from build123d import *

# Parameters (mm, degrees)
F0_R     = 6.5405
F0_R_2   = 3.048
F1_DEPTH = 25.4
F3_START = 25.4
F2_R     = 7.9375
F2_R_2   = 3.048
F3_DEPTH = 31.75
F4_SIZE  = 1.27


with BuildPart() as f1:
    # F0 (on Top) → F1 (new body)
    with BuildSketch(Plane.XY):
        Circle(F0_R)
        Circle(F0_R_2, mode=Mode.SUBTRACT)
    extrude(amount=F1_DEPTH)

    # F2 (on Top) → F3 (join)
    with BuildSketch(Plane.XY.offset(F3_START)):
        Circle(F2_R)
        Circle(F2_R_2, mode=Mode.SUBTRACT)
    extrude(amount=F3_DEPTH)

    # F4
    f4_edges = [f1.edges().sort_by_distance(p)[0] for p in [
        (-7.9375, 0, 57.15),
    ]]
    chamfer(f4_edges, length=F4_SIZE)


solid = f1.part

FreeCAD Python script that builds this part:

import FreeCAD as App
import Part
import Sketcher
from FreeCAD import Vector
Q = App.Units.Quantity


def edges_at(feature, points):
    """Names of the edges that pass closest to the given points."""
    edges = feature.Shape.Edges
    near = lambda p: min(range(len(edges)), key=lambda i: edges[i].distToShape(Part.Vertex(*p))[0])
    return sorted({f"Edge{near(p) + 1}" for p in points})

doc = App.newDocument("Part")
params = doc.addObject("Spreadsheet::Sheet", "Params")
for row, (alias, value) in enumerate([
    ("sketch1_diameter", "0.24 in"),
    ("sketch1_diameter2", "0.515 in"),
    ("pad1_length", "1 in"),
    ("sketch2_diameter", "0.24 in"),
    ("sketch2_diameter2", "0.625 in"),
    ("pad2_length", "1.25 in"),
    ("chamfer_size", "0.05 in"),
], start=1):
    params.set(f"A{row}", alias)
    params.set(f"B{row}", "=" + value)
    params.setAlias(f"B{row}", alias)

body = doc.addObject("PartDesign::Body", "Body")

# Sketch on XY plane
sketch1 = doc.addObject("Sketcher::SketchObject", "Sketch")
body.addObject(sketch1)
sketch1.AttachmentSupport = (doc.XY_Plane, [""])
sketch1.MapMode = "FlatFace"
sketch1.addGeometry([
    Part.Circle(Vector(0, 0, 0), Vector(0, 0, 1), 6.5),
    Part.Circle(Vector(0, 0, 0), Vector(0, 0, 1), 3),
], False)
sketch1.addConstraint([
    Sketcher.Constraint("Coincident", 0, 3, -1, 1),
    Sketcher.Constraint("Coincident", 1, 3, -1, 1),
    Sketcher.Constraint("Diameter", 1, Q("0.24 in")),
    Sketcher.Constraint("Diameter", 0, Q("0.515 in")),
])
sketch1.setExpression("Constraints[2]", "Params.sketch1_diameter")
sketch1.setExpression("Constraints[3]", "Params.sketch1_diameter2")
pad1 = doc.addObject("PartDesign::Pad", "Pad")
body.addObject(pad1)
pad1.Profile = sketch1
pad1.setExpression("Length", "Params.pad1_length")

# Sketch on XY plane
sketch2 = doc.addObject("Sketcher::SketchObject", "Sketch001")
body.addObject(sketch2)
sketch2.AttachmentSupport = (doc.XY_Plane, [""])
sketch2.MapMode = "FlatFace"
sketch2.AttachmentOffset = App.Placement(Vector(0, 0, 1 * 25.4), App.Rotation())
sketch2.addGeometry([
    Part.Circle(Vector(0, 0, 0), Vector(0, 0, 1), 7.9),
    Part.Circle(Vector(0, 0, 0), Vector(0, 0, 1), 3),
], False)
sketch2.addConstraint([
    Sketcher.Constraint("Coincident", 0, 3, -1, 1),
    Sketcher.Constraint("Coincident", 1, 3, -1, 1),
    Sketcher.Constraint("Diameter", 1, Q("0.24 in")),
    Sketcher.Constraint("Diameter", 0, Q("0.625 in")),
])
sketch2.setExpression("Constraints[2]", "Params.sketch2_diameter")
sketch2.setExpression("Constraints[3]", "Params.sketch2_diameter2")
pad2 = doc.addObject("PartDesign::Pad", "Pad001")
body.addObject(pad2)
pad2.Profile = sketch2
pad2.setExpression("Length", "Params.pad2_length")
doc.recompute()

chamfer = doc.addObject("PartDesign::Chamfer", "Chamfer")
body.addObject(chamfer)
chamfer.Base = (pad2, edges_at(pad2, [(-7.938, 0, 57.15)]))
chamfer.setExpression("Size", "Params.chamfer_size")

doc.recompute()
